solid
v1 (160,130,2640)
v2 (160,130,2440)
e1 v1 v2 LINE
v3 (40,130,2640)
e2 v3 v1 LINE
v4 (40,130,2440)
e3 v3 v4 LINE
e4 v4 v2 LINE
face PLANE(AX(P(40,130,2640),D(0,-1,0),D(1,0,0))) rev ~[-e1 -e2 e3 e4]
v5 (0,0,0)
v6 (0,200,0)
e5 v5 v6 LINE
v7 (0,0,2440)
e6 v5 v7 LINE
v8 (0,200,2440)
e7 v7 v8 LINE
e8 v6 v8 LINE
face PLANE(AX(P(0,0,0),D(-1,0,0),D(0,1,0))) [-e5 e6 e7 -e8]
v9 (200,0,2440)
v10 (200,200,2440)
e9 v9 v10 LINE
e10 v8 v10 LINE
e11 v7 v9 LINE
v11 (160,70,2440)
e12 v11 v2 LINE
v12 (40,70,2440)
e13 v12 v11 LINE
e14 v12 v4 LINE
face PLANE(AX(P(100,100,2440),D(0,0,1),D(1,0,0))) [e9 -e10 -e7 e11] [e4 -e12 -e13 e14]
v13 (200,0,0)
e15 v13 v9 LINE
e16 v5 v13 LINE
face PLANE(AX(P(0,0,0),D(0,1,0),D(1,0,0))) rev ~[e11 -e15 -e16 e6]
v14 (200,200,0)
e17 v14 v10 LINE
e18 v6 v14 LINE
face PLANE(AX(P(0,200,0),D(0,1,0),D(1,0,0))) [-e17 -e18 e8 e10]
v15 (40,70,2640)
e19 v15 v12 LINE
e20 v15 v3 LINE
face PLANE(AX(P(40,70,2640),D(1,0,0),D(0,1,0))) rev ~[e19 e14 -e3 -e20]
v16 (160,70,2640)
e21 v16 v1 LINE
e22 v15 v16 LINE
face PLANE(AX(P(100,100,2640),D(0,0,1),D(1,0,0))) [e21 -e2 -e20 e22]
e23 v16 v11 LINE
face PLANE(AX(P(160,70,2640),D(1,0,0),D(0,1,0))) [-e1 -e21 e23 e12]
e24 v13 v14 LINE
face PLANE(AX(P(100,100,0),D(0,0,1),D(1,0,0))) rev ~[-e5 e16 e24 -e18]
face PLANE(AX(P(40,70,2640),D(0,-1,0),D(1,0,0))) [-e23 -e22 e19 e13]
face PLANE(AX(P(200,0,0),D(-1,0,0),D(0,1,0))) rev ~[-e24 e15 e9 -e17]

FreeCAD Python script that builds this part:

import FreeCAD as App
import Part
import Sketcher
from FreeCAD import Vector


def add_polygon(sketch, points):
    """Adds a closed chain of lines whose ends are joined by coincident constraints."""
    first, n = sketch.GeometryCount, len(points)
    for a, b in zip(points, points[1:] + points[:1]):
        sketch.addGeometry(Part.LineSegment(App.Vector(*a, 0), App.Vector(*b, 0)), False)
    for i in range(n):
        sketch.addConstraint(Sketcher.Constraint("Coincident", first + i, 2, first + (i + 1) % n, 1))

doc = App.newDocument("Part")
params = doc.addObject("Spreadsheet::Sheet", "Params")
for row, (alias, value) in enumerate([
    ("sketch1_width", "200 mm"),
    ("pad1_length", "2640 mm"),
    ("sketch2_width", "200 mm"),
    ("sketch2_width2", "120 mm"),
    ("sketch2_height", "60 mm"),
    ("pocket1_length", "200 mm"),
], start=1):
    params.set(f"A{row}", alias)
    params.set(f"B{row}", "=" + value)
    params.setAlias(f"B{row}", alias)

body = doc.addObject("PartDesign::Body", "Body")

sketch1 = body.newObject("Sketcher::SketchObject", "Sketch")
sketch1.AttachmentSupport = (doc.getObject("XY_Plane"), [""])
sketch1.MapMode = "FlatFace"
add_polygon(sketch1, [(0, 200), (0, 0), (200, 0), (200, 200)])
sketch1.addConstraint(Sketcher.Constraint("Vertical", 0))
sketch1.addConstraint(Sketcher.Constraint("Horizontal", 1))
sketch1.addConstraint(Sketcher.Constraint("Vertical", 2))
sketch1.addConstraint(Sketcher.Constraint("Horizontal", 3))
sketch1.addConstraint(Sketcher.Constraint("Coincident", 0, 2, -1, 1))
sketch1.addConstraint(Sketcher.Constraint("Equal", 3, 0))
sketch1.addConstraint(Sketcher.Constraint("DistanceX", 1, 1, 1, 2, 200.0))
sketch1.setExpression("Constraints[10]", "Params.sketch1_width")
pad1 = body.newObject("PartDesign::Pad", "Pad")
pad1.Profile = sketch1
pad1.setExpression("Length", "Params.pad1_length")

sketch2 = body.newObject("Sketcher::SketchObject", "Sketch001")
sketch2.AttachmentSupport = (doc.getObject("XY_Plane"), [""])
sketch2.MapMode = "FlatFace"
sketch2.AttachmentOffset = App.Placement(Vector(0, 0, 2640), App.Rotation())
add_polygon(sketch2, [(0, 200), (0, 0), (200, 0), (200, 200)])
add_polygon(sketch2, [(160, 70), (40, 70), (40, 130), (160, 130)])
sketch2.addConstraint(Sketcher.Constraint("Vertical", 0))
sketch2.addConstraint(Sketcher.Constraint("Horizontal", 1))
sketch2.addConstraint(Sketcher.Constraint("Vertical", 2))
sketch2.addConstraint(Sketcher.Constraint("Horizontal", 3))
sketch2.addConstraint(Sketcher.Constraint("Horizontal", 4))
sketch2.addConstraint(Sketcher.Constraint("Vertical", 5))
sketch2.addConstraint(Sketcher.Constraint("Horizontal", 6))
sketch2.addConstraint(Sketcher.Constraint("Vertical", 7))
sketch2.addConstraint(Sketcher.Constraint("Coincident", 0, 2, -1, 1))
sketch2.addConstraint(Sketcher.Constraint("Equal", 3, 0))
sketch2.addConstraint(Sketcher.Constraint("DistanceX", 1, 1, 1, 2, 200.0))
sketch2.addConstraint(Sketcher.Constraint("DistanceX", 4, 2, 4, 1, 120.0))
sketch2.addConstraint(Sketcher.Constraint("DistanceY", 5, 1, 5, 2, 60.0))
sketch2.addConstraint(Sketcher.Constraint("DistanceX", -1, 1, 4, 2, 40.0))
sketch2.addConstraint(Sketcher.Constraint("DistanceY", -1, 1, 4, 2, 70.0))
sketch2.setExpression("Constraints[18]", "Params.sketch2_width")
sketch2.setExpression("Constraints[19]", "Params.sketch2_width2")
sketch2.setExpression("Constraints[20]", "Params.sketch2_height")
pocket1 = body.newObject("PartDesign::Pocket", "Pocket")
pocket1.Profile = sketch2
pocket1.setExpression("Length", "Params.pocket1_length")

doc.recompute()
